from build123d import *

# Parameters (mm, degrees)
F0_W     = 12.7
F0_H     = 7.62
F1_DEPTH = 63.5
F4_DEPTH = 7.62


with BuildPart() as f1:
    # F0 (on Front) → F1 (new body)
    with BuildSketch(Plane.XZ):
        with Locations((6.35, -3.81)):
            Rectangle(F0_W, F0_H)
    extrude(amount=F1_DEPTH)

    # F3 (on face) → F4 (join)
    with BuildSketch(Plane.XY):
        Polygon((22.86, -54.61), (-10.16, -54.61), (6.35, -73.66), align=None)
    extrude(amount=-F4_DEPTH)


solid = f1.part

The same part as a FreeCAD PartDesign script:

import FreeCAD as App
import Part
import Sketcher
from FreeCAD import Vector
Q = App.Units.Quantity

doc = App.newDocument("Part")
body = doc.addObject("PartDesign::Body", "Body")

# Sketch on XZ plane
sketch1 = body.newObject("Sketcher::SketchObject", "Sketch")
sketch1.AttachmentSupport = (doc.getObject("XZ_Plane"), [""])
sketch1.MapMode = "FlatFace"
sketch1.addGeometry(Part.LineSegment(Vector(0, 0, 0), Vector(0, -8, 0)), False)
sketch1.addGeometry(Part.LineSegment(Vector(0, -8, 0), Vector(13, -8, 0)), False)
sketch1.addGeometry(Part.LineSegment(Vector(13, -8, 0), Vector(13, 0, 0)), False)
sketch1.addGeometry(Part.LineSegment(Vector(13, 0, 0), Vector(0, 0, 0)), False)
sketch1.addConstraint(Sketcher.Constraint("Coincident", 0, 2, 1, 1))
sketch1.addConstraint(Sketcher.Constraint("Coincident", 1, 2, 2, 1))
sketch1.addConstraint(Sketcher.Constraint("Coincident", 2, 2, 3, 1))
sketch1.addConstraint(Sketcher.Constraint("Coincident", 3, 2, 0, 1))
sketch1.addConstraint(Sketcher.Constraint("Vertical", 0))
sketch1.addConstraint(Sketcher.Constraint("Horizontal", 1))
sketch1.addConstraint(Sketcher.Constraint("Vertical", 2))
sketch1.addConstraint(Sketcher.Constraint("Horizontal", 3))
sketch1.addConstraint(Sketcher.Constraint("Coincident", 3, 2, -1, 1))
sketch1.addConstraint(Sketcher.Constraint("DistanceX", 1, 1, 1, 2, Q("0.5 in")))
sketch1.addConstraint(Sketcher.Constraint("DistanceY", 0, 2, 0, 1, Q("0.3 in")))
pad1 = body.newObject("PartDesign::Pad", "Pad")
pad1.Profile = sketch1
pad1.Length = Q("2.5 in")

# Sketch on XY plane
sketch2 = body.newObject("Sketcher::SketchObject", "Sketch001")
sketch2.AttachmentSupport = (doc.getObject("XY_Plane"), [""])
sketch2.MapMode = "FlatFace"
sketch2.addGeometry(Part.LineSegment(Vector(23, -55, 0), Vector(-10, -55, 0)), False)
sketch2.addGeometry(Part.LineSegment(Vector(-10, -55, 0), Vector(6, -74, 0)), False)
sketch2.addGeometry(Part.LineSegment(Vector(6, -74, 0), Vector(23, -55, 0)), False)
sketch2.addConstraint(Sketcher.Constraint("Coincident", 0, 2, 1, 1))
sketch2.addConstraint(Sketcher.Constraint("Coincident", 1, 2, 2, 1))
sketch2.addConstraint(Sketcher.Constraint("Coincident", 2, 2, 0, 1))
sketch2.addConstraint(Sketcher.Constraint("Horizontal", 0))
sketch2.addConstraint(Sketcher.Constraint("Equal", 1, 2))
sketch2.addConstraint(Sketcher.Constraint("DistanceX", 0, 2, 0, 1, Q("1.3 in")))
sketch2.addConstraint(Sketcher.Constraint("DistanceX", 0, 2, -1, 1, Q("0.4 in")))
sketch2.addConstraint(Sketcher.Constraint("DistanceY", 1, 2, -1, 1, Q("2.9 in")))
sketch2.addConstraint(Sketcher.Constraint("DistanceY", 0, 2, -1, 1, Q("2.15 in")))
pad2 = body.newObject("PartDesign::Pad", "Pad001")
pad2.Profile = sketch2
pad2.Length = Q("0.3 in")
pad2.Reversed = True

doc.recompute()
